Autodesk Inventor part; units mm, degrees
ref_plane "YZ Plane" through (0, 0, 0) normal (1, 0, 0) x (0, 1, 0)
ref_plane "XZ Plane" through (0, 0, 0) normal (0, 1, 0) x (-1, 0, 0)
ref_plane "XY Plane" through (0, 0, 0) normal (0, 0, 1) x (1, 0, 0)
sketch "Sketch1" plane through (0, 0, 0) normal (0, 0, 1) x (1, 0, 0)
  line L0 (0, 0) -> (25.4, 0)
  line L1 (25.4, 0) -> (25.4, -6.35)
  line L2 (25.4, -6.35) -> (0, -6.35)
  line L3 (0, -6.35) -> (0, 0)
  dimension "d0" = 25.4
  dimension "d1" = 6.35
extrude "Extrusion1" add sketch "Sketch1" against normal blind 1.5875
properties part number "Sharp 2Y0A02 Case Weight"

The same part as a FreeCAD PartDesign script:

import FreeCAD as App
import Part
import Sketcher
Q = App.Units.Quantity

doc = App.newDocument("Part")
params = doc.addObject("Spreadsheet::Sheet", "Params")
for row, (alias, value) in enumerate([
    ("sketch1_width", "1 in"),
    ("sketch1_height", "0.25 in"),
    ("pad1_length", "0.0625 in"),
], start=1):
    params.set(f"A{row}", alias)
    params.set(f"B{row}", "=" + value)
    params.setAlias(f"B{row}", alias)

body = doc.addObject("PartDesign::Body", "Body")

# Sketch on XY plane
sketch1 = doc.addObject("Sketcher::SketchObject", "Sketch")
body.addObject(sketch1)
sketch1.AttachmentSupport = (doc.XY_Plane, [""])
sketch1.MapMode = "FlatFace"
sketch1.addGeometry(Part.LineSegment(App.Vector(25, 0, 0), App.Vector(0, 0, 0)), False)
sketch1.addGeometry(Part.LineSegment(App.Vector(0, 0, 0), App.Vector(0, -6, 0)), False)
sketch1.addGeometry(Part.LineSegment(App.Vector(0, -6, 0), App.Vector(25, -6, 0)), False)
sketch1.addGeometry(Part.LineSegment(App.Vector(25, -6, 0), App.Vector(25, 0, 0)), False)
sketch1.addConstraint(Sketcher.Constraint("Coincident", 0, 2, 1, 1))
sketch1.addConstraint(Sketcher.Constraint("Coincident", 1, 2, 2, 1))
sketch1.addConstraint(Sketcher.Constraint("Coincident", 2, 2, 3, 1))
sketch1.addConstraint(Sketcher.Constraint("Coincident", 3, 2, 0, 1))
sketch1.addConstraint(Sketcher.Constraint("Horizontal", 0))
sketch1.addConstraint(Sketcher.Constraint("Vertical", 1))
sketch1.addConstraint(Sketcher.Constraint("Horizontal", 2))
sketch1.addConstraint(Sketcher.Constraint("Vertical", 3))
sketch1.addConstraint(Sketcher.Constraint("Coincident", 0, 2, -1, 1))
sketch1.addConstraint(Sketcher.Constraint("DistanceX", 0, 2, 0, 1, Q("1 in")))
sketch1.addConstraint(Sketcher.Constraint("DistanceY", 1, 2, 1, 1, Q("0.25 in")))
sketch1.setExpression("Constraints[9]", "Params.sketch1_width")
sketch1.setExpression("Constraints[10]", "Params.sketch1_height")
pad1 = doc.addObject("PartDesign::Pad", "Pad")
body.addObject(pad1)
pad1.Profile = sketch1
pad1.setExpression("Length", "Params.pad1_length")
pad1.Reversed = True

doc.recompute()
